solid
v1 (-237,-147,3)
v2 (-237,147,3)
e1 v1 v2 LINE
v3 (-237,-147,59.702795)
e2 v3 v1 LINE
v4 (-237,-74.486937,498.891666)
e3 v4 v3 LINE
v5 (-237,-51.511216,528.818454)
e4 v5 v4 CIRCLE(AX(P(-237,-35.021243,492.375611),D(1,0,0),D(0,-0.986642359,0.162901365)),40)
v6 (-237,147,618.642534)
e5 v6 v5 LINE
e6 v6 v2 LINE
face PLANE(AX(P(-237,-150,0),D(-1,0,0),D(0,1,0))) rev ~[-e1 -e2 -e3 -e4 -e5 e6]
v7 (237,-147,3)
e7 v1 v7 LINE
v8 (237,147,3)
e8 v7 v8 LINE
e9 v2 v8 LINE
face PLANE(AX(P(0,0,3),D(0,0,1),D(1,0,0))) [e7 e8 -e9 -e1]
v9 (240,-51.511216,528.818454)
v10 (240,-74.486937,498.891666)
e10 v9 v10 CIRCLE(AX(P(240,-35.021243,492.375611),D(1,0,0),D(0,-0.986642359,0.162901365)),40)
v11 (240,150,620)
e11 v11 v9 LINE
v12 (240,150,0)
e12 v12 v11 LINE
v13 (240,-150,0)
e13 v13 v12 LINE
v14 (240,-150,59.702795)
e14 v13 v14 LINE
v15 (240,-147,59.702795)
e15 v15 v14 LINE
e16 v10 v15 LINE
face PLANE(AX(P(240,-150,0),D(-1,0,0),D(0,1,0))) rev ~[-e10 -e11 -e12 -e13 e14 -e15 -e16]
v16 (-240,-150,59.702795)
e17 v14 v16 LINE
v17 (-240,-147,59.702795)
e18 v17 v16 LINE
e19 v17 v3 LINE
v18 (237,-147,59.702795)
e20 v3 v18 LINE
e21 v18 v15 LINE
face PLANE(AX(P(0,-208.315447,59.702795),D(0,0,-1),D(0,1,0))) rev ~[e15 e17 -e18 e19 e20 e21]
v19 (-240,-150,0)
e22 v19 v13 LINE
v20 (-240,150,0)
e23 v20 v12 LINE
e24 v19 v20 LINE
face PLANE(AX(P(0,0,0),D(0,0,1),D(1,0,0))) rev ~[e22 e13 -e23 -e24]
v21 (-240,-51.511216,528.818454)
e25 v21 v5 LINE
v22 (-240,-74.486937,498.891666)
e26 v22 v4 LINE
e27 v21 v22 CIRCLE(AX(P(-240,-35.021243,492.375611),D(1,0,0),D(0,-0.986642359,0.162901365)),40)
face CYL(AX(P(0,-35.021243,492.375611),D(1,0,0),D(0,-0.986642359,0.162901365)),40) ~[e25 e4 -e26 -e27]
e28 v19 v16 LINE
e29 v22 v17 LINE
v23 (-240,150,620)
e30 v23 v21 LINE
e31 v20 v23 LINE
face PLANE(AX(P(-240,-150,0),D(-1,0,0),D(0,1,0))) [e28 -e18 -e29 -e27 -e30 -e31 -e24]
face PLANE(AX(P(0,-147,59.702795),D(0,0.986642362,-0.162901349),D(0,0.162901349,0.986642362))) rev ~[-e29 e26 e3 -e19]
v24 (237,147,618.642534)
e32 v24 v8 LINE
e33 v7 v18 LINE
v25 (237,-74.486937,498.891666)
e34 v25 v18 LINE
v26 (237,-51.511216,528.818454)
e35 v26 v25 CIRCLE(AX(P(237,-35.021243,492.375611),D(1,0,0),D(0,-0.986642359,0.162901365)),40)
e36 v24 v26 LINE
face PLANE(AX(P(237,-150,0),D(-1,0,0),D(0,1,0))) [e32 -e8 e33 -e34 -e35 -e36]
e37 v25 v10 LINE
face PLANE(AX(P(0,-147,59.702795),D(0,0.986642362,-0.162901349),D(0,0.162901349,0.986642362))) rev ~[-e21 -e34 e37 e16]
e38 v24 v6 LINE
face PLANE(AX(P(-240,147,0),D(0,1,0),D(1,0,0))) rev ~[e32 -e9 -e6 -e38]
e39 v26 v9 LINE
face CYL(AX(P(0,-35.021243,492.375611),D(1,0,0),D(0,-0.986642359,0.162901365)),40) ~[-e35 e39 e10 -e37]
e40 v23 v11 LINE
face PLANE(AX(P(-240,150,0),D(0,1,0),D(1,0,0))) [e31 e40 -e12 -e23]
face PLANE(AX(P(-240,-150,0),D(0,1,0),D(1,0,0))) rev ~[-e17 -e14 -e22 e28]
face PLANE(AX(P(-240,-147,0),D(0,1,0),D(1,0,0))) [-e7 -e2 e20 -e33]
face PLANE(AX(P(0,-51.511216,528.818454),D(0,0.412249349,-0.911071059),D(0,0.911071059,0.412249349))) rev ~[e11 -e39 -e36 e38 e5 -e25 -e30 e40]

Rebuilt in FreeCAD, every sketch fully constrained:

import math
import FreeCAD as App
import Part
import Sketcher


def faces_at(feature, points):
    """Names of the faces that lie closest to the given points."""
    faces = feature.Shape.Faces
    near = lambda p: min(range(len(faces)), key=lambda i: faces[i].distToShape(Part.Vertex(*p))[0])
    return sorted({f"Face{near(p) + 1}" for p in points})


def add_polygon(sketch, points):
    """Adds a closed chain of lines whose ends are joined by coincident constraints."""
    first, n = sketch.GeometryCount, len(points)
    for a, b in zip(points, points[1:] + points[:1]):
        sketch.addGeometry(Part.LineSegment(App.Vector(*a, 0), App.Vector(*b, 0)), False)
    for i in range(n):
        sketch.addConstraint(Sketcher.Constraint("Coincident", first + i, 2, first + (i + 1) % n, 1))

doc = App.newDocument("Part")
body = doc.addObject("PartDesign::Body", "Body")

# Sketch on XY plane
sketch1 = doc.addObject("Sketcher::SketchObject", "Sketch")
body.addObject(sketch1)
sketch1.AttachmentSupport = (doc.XY_Plane, [""])
sketch1.MapMode = "FlatFace"
add_polygon(sketch1, [(-240, 150), (-240, -150), (240, -150), (240, 150)])  # lines 0-3
sketch1.addConstraint([
    Sketcher.Constraint("Vertical", 0),
    Sketcher.Constraint("Horizontal", 1),
    Sketcher.Constraint("Vertical", 2),
    Sketcher.Constraint("Horizontal", 3),
    Sketcher.Constraint("Symmetric", 0, 2, 2, 2, -1, 1),
    Sketcher.Constraint("DistanceX", 1, 1, 1, 2, 480.0),
    Sketcher.Constraint("DistanceY", 0, 2, 0, 1, 300.0),
])
pad1 = doc.addObject("PartDesign::Pad", "Pad")
body.addObject(pad1)
pad1.Profile = sketch1
pad1.Length = 620
doc.recompute()

thickness = doc.addObject("PartDesign::Thickness", "Thickness")
body.addObject(thickness)
thickness.Base = (pad1, faces_at(pad1, [(0, 0, 620)]))
thickness.Value = 3
thickness.Reversed = True
thickness.Join = "Arc"

# Sketch on YZ plane
sketch2 = doc.addObject("Sketcher::SketchObject", "Sketch001")
body.addObject(sketch2)
sketch2.AttachmentSupport = (doc.YZ_Plane, [""])
sketch2.MapMode = "FlatFace"
sketch2.addGeometry([
    Part.LineSegment(App.Vector(-208, 60, 0), App.Vector(-147, 60, 0)),  # 0
    Part.LineSegment(App.Vector(-147, 60, 0), App.Vector(-74, 499, 0)),  # 1
    Part.ArcOfCircle(Part.Circle(App.Vector(-35, 492, 0), App.Vector(0, 0, 1), 40), math.radians(114), math.radians(171)),  # 2
    Part.LineSegment(App.Vector(-52, 529, 0), App.Vector(150, 620, 0)),  # 3
    Part.LineSegment(App.Vector(150, 620, 0), App.Vector(136, 668, 0)),  # 4
    Part.LineSegment(App.Vector(136, 668, 0), App.Vector(-228, 668, 0)),  # 5
    Part.LineSegment(App.Vector(-228, 668, 0), App.Vector(-208, 60, 0)),  # 6
], False)
sketch2.addConstraint([
    Sketcher.Constraint("Coincident", 0, 2, 1, 1),
    Sketcher.Constraint("Tangent", 1, 2, 2, 2),
    Sketcher.Constraint("Tangent", 2, 1, 3, 1),
    Sketcher.Constraint("Coincident", 3, 2, 4, 1),
    Sketcher.Constraint("Coincident", 4, 2, 5, 1),
    Sketcher.Constraint("Coincident", 5, 2, 6, 1),
    Sketcher.Constraint("Coincident", 6, 2, 0, 1),
    Sketcher.Constraint("Horizontal", 0),
    Sketcher.Constraint("Horizontal", 5),
    Sketcher.Constraint("Radius", 2, 40.0),
    Sketcher.Constraint("DistanceX", 0, 2, -1, 1, 147.0),
    Sketcher.Constraint("DistanceX", -1, 1, 3, 2, 150.0),
    Sketcher.Constraint("DistanceY", -1, 1, 3, 2, 620.0),
    Sketcher.Constraint("DistanceX", 5, 2, 5, 1, 364.316598),
    Sketcher.Constraint("DistanceY", -1, 1, 4, 2, 668.386102),
    Sketcher.Constraint("DistanceX", 2, 1, 4, 2, 187.614399),
    Sketcher.Constraint("Distance", 1, 445.134821),
    Sketcher.Constraint("Distance", 3, 221.18057),
    Sketcher.Constraint("DistanceX", 0, 1, 0, 2, 61.315447),
    Sketcher.Constraint("DistanceY", -1, 1, 2, 3, 492.375611),
])
pocket1 = doc.addObject("PartDesign::Pocket", "Pocket")
body.addObject(pocket1)
pocket1.Profile = sketch2
pocket1.Length = 724
pocket1.Midplane = True

doc.recompute()
